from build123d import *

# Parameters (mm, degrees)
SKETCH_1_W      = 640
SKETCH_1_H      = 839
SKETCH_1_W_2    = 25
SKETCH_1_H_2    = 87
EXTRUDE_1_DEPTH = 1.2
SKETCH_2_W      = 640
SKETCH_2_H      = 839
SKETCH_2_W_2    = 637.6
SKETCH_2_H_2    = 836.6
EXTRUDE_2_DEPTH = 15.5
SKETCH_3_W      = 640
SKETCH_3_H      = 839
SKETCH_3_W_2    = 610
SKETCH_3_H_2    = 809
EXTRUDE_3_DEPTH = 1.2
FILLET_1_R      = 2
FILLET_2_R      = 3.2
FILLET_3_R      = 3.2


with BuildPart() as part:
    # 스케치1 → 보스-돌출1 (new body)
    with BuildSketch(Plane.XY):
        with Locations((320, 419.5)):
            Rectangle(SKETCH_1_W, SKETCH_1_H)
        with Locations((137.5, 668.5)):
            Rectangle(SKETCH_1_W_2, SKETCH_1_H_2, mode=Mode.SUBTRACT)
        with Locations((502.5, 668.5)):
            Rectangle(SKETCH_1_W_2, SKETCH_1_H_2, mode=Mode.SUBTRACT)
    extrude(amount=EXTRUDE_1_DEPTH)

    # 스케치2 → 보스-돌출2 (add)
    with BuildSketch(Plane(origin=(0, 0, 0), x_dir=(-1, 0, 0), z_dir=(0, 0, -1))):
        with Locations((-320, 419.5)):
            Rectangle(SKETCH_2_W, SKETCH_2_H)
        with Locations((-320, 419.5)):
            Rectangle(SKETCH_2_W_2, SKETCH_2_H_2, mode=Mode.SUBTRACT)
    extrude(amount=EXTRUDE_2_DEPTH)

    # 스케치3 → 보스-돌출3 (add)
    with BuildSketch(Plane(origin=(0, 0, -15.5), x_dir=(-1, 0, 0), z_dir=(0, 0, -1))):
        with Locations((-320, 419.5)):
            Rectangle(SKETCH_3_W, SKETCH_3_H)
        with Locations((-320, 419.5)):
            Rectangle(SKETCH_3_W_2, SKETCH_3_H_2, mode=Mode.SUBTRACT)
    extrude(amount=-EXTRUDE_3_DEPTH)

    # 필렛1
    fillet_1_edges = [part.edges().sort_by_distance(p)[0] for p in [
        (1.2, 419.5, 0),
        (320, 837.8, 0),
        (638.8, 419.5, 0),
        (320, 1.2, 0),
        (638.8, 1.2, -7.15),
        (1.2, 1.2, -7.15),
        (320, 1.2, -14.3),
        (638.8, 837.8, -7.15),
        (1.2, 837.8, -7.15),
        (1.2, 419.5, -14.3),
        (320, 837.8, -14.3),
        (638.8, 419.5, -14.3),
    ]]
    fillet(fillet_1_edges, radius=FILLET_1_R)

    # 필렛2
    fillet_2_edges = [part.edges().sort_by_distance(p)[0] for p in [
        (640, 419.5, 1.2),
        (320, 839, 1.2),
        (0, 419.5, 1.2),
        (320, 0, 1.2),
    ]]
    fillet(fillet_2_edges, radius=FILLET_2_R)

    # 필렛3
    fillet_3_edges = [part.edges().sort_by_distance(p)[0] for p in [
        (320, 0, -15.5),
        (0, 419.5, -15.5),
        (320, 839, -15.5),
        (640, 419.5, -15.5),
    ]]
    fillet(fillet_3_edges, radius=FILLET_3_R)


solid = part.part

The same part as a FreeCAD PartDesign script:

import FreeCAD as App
import Part
import Sketcher


def edges_at(feature, points):
    """Names of the edges that pass closest to the given points."""
    edges = feature.Shape.Edges
    near = lambda p: min(range(len(edges)), key=lambda i: edges[i].distToShape(Part.Vertex(*p))[0])
    return sorted({f"Edge{near(p) + 1}" for p in points})


def add_polygon(sketch, points):
    """Adds a closed chain of lines whose ends are joined by coincident constraints."""
    first, n = sketch.GeometryCount, len(points)
    for a, b in zip(points, points[1:] + points[:1]):
        sketch.addGeometry(Part.LineSegment(App.Vector(*a, 0), App.Vector(*b, 0)), False)
    for i in range(n):
        sketch.addConstraint(Sketcher.Constraint("Coincident", first + i, 2, first + (i + 1) % n, 1))

doc = App.newDocument("Part")
body = doc.addObject("PartDesign::Body", "Body")

sketch1 = body.newObject("Sketcher::SketchObject", "Sketch")
sketch1.AttachmentSupport = (doc.getObject("XY_Plane"), [""])
sketch1.MapMode = "FlatFace"
add_polygon(sketch1, [(0, 839), (0, 0), (640, 0), (640, 839)])
add_polygon(sketch1, [(150, 625), (125, 625), (125, 712), (150, 712)])
add_polygon(sketch1, [(515, 625), (490, 625), (490, 712), (515, 712)])
sketch1.addConstraint([
    Sketcher.Constraint("Vertical", 0),
    Sketcher.Constraint("Horizontal", 1),
    Sketcher.Constraint("Vertical", 2),
    Sketcher.Constraint("Horizontal", 3),
    Sketcher.Constraint("Horizontal", 4),
    Sketcher.Constraint("Vertical", 5),
    Sketcher.Constraint("Horizontal", 6),
    Sketcher.Constraint("Vertical", 7),
    Sketcher.Constraint("Horizontal", 8),
    Sketcher.Constraint("Vertical", 9),
    Sketcher.Constraint("Horizontal", 10),
    Sketcher.Constraint("Vertical", 11),
    Sketcher.Constraint("Coincident", 0, 2, -1, 1),
    Sketcher.Constraint("Horizontal", 7, 2, 8, 2),
    Sketcher.Constraint("Horizontal", 6, 2, 9, 2),
    Sketcher.Constraint("Equal", 6, 8),
    Sketcher.Constraint("DistanceX", 1, 1, 1, 2, 640.0),
    Sketcher.Constraint("DistanceX", 4, 2, 4, 1, 25.0),
    Sketcher.Constraint("DistanceY", 0, 2, 0, 1, 839.0),
    Sketcher.Constraint("DistanceY", 5, 1, 5, 2, 87.0),
    Sketcher.Constraint("DistanceX", -1, 1, 4, 2, 125.0),
    Sketcher.Constraint("DistanceY", -1, 1, 4, 2, 625.0),
    Sketcher.Constraint("DistanceX", -1, 1, 8, 2, 490.0),
])
pad1 = body.newObject("PartDesign::Pad", "Pad")
pad1.Profile = sketch1
pad1.Length = 1.2

sketch2 = body.newObject("Sketcher::SketchObject", "Sketch001")
sketch2.AttachmentSupport = (doc.getObject("XY_Plane"), [""])
sketch2.MapMode = "FlatFace"
add_polygon(sketch2, [(640, 839), (640, 0), (0, 0), (0, 839)])
add_polygon(sketch2, [(1, 1), (639, 1), (639, 838), (1, 838)])
sketch2.addConstraint([
    Sketcher.Constraint("Vertical", 0),
    Sketcher.Constraint("Horizontal", 1),
    Sketcher.Constraint("Vertical", 2),
    Sketcher.Constraint("Horizontal", 3),
    Sketcher.Constraint("Horizontal", 4),
    Sketcher.Constraint("Vertical", 5),
    Sketcher.Constraint("Horizontal", 6),
    Sketcher.Constraint("Vertical", 7),
    Sketcher.Constraint("Coincident", 1, 2, -1, 1),
    Sketcher.Constraint("DistanceX", 1, 2, 1, 1, 640.0),
    Sketcher.Constraint("DistanceY", 0, 2, 0, 1, 839.0),
    Sketcher.Constraint("DistanceX", 4, 1, 4, 2, 637.6),
    Sketcher.Constraint("DistanceY", 5, 1, 5, 2, 836.6),
    Sketcher.Constraint("DistanceX", -1, 1, 4, 2, 638.8),
    Sketcher.Constraint("DistanceY", -1, 1, 4, 2, 1.2),
])
pad2 = body.newObject("PartDesign::Pad", "Pad001")
pad2.Profile = sketch2
pad2.Length = 15.5
pad2.Reversed = True

sketch3 = body.newObject("Sketcher::SketchObject", "Sketch002")
sketch3.AttachmentSupport = (doc.getObject("XY_Plane"), [""])
sketch3.MapMode = "FlatFace"
sketch3.AttachmentOffset = App.Placement(App.Vector(0, 0, -15.5), App.Rotation())
add_polygon(sketch3, [(640, 839), (640, 0), (0, 0), (0, 839)])
add_polygon(sketch3, [(15, 15), (625, 15), (625, 824), (15, 824)])
sketch3.addConstraint([
    Sketcher.Constraint("Vertical", 0),
    Sketcher.Constraint("Horizontal", 1),
    Sketcher.Constraint("Vertical", 2),
    Sketcher.Constraint("Horizontal", 3),
    Sketcher.Constraint("Horizontal", 4),
    Sketcher.Constraint("Vertical", 5),
    Sketcher.Constraint("Horizontal", 6),
    Sketcher.Constraint("Vertical", 7),
    Sketcher.Constraint("Coincident", 1, 2, -1, 1),
    Sketcher.Constraint("DistanceX", 1, 2, 1, 1, 640.0),
    Sketcher.Constraint("DistanceX", 4, 1, 4, 2, 610.0),
    Sketcher.Constraint("DistanceY", 0, 2, 0, 1, 839.0),
    Sketcher.Constraint("DistanceY", 5, 1, 5, 2, 809.0),
    Sketcher.Constraint("DistanceX", -1, 1, 4, 2, 625.0),
    Sketcher.Constraint("DistanceY", -1, 1, 4, 2, 15.0),
])
pad3 = body.newObject("PartDesign::Pad", "Pad002")
pad3.Profile = sketch3
pad3.Length = 1.2
doc.recompute()

fillet = body.newObject("PartDesign::Fillet", "Fillet")
fillet.Base = (pad3, edges_at(pad3, [
    (1.2, 419.5, 0),
    (320, 837.8, 0),
    (638.8, 419.5, 0),
    (320, 1.2, 0),
    (638.8, 1.2, -7.15),
    (1.2, 1.2, -7.15),
    (320, 1.2, -14.3),
    (638.8, 837.8, -7.15),
    (1.2, 837.8, -7.15),
    (1.2, 419.5, -14.3),
    (320, 837.8, -14.3),
    (638.8, 419.5, -14.3),
]))
fillet.Radius = 2
doc.recompute()

fillet2 = body.newObject("PartDesign::Fillet", "Fillet001")
fillet2.Base = (fillet, edges_at(fillet, [
    (640, 419.5, 1.2),
    (320, 839, 1.2),
    (0, 419.5, 1.2),
    (320, 0, 1.2),
]))
fillet2.Radius = 3.2
doc.recompute()

fillet3 = body.newObject("PartDesign::Fillet", "Fillet002")
fillet3.Base = (fillet2, edges_at(fillet2, [
    (320, 0, -15.5),
    (0, 419.5, -15.5),
    (320, 839, -15.5),
    (640, 419.5, -15.5),
]))
fillet3.Radius = 3.2

doc.recompute()
